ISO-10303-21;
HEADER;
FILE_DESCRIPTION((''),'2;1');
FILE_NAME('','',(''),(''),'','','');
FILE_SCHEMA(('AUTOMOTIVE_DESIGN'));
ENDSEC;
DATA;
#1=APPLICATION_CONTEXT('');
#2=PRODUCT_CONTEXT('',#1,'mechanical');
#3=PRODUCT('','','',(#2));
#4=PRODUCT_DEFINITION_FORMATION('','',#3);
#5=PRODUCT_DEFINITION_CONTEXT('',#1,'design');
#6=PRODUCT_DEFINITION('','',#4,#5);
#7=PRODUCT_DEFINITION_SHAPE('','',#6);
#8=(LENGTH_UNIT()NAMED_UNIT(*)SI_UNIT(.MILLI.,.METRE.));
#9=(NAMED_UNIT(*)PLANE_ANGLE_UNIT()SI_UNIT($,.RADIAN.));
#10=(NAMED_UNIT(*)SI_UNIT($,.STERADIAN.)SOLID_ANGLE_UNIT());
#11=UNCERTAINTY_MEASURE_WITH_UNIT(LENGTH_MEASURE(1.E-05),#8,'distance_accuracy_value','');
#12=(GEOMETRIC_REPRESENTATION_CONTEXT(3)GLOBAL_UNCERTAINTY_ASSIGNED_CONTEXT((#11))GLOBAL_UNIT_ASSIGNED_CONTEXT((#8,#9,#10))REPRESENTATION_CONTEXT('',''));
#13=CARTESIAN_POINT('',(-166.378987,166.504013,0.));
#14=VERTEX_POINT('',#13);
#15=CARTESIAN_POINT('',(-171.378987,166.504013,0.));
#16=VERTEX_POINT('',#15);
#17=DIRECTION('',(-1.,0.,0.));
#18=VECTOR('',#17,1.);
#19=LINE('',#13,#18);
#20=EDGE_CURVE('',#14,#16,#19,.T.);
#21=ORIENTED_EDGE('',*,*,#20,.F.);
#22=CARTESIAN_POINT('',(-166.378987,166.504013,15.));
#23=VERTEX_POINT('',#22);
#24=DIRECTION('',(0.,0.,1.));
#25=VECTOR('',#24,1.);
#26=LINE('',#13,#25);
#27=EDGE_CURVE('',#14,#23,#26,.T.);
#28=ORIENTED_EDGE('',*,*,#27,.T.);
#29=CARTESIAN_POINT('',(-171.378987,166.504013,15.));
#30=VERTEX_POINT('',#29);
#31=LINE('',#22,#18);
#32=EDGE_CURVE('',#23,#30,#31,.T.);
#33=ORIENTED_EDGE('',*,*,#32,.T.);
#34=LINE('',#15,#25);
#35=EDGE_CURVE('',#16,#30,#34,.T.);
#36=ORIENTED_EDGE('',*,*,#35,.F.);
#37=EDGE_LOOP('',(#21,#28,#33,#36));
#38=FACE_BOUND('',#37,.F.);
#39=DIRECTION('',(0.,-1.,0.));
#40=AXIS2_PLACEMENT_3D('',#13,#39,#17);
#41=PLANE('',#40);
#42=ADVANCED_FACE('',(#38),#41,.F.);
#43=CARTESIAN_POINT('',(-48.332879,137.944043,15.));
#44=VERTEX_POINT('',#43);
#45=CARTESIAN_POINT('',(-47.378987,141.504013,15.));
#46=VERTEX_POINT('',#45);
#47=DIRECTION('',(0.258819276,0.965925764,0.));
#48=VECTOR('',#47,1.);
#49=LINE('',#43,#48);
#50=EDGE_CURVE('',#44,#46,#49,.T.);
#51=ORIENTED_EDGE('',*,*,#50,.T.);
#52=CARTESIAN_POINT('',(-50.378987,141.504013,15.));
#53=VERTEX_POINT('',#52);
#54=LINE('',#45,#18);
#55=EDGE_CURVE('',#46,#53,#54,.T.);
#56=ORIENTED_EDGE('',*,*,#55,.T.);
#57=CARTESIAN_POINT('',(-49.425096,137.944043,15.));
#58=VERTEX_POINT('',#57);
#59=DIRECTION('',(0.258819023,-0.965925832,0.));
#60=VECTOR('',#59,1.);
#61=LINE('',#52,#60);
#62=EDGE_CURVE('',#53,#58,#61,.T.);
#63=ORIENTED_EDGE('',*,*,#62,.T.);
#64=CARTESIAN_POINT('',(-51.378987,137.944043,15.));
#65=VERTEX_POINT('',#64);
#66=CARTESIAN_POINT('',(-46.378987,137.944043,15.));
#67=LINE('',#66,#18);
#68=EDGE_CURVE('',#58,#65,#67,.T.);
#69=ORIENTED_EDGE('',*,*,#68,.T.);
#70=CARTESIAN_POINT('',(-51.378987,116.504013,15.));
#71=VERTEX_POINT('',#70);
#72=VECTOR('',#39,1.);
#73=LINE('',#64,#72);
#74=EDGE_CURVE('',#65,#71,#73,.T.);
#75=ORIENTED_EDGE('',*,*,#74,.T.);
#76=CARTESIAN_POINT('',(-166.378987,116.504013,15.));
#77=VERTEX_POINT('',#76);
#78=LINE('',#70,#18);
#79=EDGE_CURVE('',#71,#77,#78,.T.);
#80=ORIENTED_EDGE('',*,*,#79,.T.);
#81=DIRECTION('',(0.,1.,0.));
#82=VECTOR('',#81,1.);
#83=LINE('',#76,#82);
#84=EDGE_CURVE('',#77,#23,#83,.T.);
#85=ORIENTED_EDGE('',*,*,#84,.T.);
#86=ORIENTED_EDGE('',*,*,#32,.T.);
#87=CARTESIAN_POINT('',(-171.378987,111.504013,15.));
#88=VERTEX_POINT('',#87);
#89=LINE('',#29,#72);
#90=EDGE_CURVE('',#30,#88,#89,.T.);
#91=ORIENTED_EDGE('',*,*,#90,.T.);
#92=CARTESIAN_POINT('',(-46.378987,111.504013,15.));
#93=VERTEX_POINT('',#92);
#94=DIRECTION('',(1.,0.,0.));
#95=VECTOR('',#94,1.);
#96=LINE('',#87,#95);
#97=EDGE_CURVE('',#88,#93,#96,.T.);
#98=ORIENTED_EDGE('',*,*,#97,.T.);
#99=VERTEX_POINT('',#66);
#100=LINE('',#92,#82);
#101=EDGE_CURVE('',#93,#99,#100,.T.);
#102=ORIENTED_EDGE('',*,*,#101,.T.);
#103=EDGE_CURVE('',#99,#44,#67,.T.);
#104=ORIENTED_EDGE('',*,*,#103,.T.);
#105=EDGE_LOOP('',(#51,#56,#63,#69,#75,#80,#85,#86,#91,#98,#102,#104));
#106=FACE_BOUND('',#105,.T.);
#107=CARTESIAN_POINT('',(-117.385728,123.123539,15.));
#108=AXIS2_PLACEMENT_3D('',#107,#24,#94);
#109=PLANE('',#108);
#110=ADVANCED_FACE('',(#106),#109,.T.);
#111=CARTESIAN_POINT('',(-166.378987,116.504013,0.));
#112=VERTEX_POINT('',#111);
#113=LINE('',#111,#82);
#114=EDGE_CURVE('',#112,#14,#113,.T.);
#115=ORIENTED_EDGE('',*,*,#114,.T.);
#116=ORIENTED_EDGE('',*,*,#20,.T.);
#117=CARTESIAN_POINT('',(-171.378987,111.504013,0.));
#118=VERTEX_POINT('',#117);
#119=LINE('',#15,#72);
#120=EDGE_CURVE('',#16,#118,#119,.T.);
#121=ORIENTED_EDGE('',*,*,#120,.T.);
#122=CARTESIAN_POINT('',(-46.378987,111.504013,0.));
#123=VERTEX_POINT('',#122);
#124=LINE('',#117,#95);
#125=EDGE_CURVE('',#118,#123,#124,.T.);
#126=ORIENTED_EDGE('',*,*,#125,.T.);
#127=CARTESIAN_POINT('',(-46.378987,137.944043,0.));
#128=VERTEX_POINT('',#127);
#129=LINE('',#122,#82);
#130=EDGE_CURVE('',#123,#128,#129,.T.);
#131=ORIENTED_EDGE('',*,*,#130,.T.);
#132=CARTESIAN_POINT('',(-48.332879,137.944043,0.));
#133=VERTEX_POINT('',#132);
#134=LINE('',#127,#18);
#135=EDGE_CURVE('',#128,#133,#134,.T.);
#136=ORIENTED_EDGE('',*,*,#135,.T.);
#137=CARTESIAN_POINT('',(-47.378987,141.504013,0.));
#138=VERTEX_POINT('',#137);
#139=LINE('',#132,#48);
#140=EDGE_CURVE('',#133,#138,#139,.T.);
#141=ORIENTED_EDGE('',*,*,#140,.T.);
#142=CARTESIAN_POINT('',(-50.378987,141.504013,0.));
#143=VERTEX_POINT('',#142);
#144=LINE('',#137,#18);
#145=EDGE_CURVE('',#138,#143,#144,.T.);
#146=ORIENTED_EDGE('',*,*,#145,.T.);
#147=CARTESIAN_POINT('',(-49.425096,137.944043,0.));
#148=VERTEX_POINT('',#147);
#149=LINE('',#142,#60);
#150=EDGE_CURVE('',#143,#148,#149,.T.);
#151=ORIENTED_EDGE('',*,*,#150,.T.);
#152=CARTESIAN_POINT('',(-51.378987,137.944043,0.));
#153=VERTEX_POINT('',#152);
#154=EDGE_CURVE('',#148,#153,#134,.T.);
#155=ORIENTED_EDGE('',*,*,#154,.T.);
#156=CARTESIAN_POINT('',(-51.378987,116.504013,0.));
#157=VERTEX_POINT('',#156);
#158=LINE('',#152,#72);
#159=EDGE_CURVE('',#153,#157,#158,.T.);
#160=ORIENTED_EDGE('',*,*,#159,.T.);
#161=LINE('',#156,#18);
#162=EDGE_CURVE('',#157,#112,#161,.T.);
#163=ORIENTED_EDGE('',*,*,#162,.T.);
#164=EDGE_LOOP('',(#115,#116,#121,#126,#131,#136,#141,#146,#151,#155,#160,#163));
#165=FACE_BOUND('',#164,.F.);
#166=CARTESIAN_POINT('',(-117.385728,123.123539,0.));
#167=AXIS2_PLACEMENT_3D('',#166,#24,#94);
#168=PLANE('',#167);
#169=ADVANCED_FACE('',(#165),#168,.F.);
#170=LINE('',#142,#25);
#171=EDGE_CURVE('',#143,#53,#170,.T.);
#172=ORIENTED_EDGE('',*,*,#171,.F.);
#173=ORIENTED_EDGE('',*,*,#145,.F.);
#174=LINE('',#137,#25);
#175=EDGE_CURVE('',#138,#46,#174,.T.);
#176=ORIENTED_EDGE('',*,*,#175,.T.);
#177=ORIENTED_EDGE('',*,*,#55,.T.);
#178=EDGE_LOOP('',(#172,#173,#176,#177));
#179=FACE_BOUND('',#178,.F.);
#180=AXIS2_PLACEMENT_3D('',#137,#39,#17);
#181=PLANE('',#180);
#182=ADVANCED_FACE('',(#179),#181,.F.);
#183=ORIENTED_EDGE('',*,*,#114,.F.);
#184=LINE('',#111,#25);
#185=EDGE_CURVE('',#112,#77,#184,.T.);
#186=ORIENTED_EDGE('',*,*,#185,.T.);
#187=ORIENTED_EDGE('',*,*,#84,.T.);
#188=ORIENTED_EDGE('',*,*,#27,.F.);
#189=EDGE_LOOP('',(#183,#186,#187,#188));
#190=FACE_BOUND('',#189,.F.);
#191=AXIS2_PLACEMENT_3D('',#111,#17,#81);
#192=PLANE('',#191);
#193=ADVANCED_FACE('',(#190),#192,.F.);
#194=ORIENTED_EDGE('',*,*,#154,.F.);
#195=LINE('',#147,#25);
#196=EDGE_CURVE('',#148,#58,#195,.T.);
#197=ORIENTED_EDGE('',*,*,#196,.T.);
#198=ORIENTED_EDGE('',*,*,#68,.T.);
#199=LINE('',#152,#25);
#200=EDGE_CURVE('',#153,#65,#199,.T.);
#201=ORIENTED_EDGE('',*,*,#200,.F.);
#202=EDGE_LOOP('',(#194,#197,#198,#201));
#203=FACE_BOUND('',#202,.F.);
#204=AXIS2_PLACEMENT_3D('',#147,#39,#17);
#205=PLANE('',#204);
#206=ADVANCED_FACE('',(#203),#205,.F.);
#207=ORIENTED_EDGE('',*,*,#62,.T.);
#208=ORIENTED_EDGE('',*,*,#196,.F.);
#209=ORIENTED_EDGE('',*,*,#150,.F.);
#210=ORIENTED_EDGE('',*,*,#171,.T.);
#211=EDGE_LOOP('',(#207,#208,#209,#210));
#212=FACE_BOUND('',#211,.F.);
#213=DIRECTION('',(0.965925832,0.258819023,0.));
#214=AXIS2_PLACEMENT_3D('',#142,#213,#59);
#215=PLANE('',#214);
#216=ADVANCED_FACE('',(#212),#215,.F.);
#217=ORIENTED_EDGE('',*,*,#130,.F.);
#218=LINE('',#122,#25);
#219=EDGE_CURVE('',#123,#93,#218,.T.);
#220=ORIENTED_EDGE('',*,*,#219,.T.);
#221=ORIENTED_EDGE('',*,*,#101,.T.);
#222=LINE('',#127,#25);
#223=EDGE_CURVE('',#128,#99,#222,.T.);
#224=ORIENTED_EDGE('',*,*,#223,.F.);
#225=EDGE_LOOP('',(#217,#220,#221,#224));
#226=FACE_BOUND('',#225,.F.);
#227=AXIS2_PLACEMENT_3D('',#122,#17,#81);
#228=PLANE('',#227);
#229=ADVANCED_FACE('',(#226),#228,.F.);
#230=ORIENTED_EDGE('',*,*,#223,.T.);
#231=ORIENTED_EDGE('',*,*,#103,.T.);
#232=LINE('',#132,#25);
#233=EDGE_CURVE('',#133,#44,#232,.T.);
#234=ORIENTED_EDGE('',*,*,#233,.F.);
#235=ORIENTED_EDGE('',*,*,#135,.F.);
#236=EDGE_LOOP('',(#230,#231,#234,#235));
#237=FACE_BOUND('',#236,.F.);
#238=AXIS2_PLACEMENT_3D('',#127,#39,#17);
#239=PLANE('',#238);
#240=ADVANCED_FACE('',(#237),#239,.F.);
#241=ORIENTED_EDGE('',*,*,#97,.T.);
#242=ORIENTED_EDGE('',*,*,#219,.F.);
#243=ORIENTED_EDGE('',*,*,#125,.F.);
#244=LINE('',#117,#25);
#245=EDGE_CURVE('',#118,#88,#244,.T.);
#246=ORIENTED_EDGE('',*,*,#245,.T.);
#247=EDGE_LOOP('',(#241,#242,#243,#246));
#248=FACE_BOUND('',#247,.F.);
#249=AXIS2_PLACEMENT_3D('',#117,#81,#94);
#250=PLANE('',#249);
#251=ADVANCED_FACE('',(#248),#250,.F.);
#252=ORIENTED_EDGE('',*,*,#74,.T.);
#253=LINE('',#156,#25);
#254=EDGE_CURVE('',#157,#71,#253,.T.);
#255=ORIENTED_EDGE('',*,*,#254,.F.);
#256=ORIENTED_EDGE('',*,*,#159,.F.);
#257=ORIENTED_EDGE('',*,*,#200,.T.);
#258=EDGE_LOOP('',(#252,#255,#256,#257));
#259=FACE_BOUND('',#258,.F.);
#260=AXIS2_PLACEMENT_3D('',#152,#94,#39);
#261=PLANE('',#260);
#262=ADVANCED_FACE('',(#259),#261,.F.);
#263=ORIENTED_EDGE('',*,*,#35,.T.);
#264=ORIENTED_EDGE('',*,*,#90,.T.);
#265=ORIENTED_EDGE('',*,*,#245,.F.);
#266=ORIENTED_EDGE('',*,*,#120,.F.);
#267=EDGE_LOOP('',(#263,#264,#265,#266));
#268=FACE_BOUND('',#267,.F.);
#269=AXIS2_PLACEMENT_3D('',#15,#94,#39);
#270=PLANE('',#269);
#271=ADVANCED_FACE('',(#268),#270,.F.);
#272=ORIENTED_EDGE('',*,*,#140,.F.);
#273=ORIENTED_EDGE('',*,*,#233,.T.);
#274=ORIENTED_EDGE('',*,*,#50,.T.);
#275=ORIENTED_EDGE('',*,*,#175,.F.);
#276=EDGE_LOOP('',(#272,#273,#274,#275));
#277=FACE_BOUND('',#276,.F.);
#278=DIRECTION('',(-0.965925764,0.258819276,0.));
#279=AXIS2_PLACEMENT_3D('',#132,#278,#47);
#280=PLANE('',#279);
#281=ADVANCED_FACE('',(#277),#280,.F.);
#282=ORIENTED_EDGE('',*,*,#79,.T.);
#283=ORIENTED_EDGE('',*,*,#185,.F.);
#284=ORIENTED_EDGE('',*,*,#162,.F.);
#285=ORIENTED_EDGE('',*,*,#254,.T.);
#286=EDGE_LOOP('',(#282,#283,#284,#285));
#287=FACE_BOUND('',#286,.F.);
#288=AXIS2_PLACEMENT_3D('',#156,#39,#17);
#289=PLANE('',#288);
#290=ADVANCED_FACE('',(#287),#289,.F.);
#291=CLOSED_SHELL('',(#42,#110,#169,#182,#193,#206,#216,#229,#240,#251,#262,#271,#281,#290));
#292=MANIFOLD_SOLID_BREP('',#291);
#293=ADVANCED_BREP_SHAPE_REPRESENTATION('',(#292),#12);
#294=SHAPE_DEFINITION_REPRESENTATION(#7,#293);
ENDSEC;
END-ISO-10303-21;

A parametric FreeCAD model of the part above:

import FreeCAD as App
import Part
import Sketcher
Q = App.Units.Quantity


def add_polygon(sketch, points):
    """Adds a closed chain of lines whose ends are joined by coincident constraints."""
    first, n = sketch.GeometryCount, len(points)
    for a, b in zip(points, points[1:] + points[:1]):
        sketch.addGeometry(Part.LineSegment(App.Vector(*a, 0), App.Vector(*b, 0)), False)
    for i in range(n):
        sketch.addConstraint(Sketcher.Constraint("Coincident", first + i, 2, first + (i + 1) % n, 1))

doc = App.newDocument("Part")
params = doc.addObject("Spreadsheet::Sheet", "Params")
for row, (alias, value) in enumerate([
    ("sketch1_width", "5 mm"),
    ("sketch1_width2", "125 mm"),
    ("sketch1_width3", "3 mm"),
    ("sketch1_width4", "115 mm"),
    ("sketch1_height", "55 mm"),
    ("pad1_length", "15 mm"),
], start=1):
    params.set(f"A{row}", alias)
    params.set(f"B{row}", "=" + value)
    params.setAlias(f"B{row}", alias)

body = doc.addObject("PartDesign::Body", "Body")

# Sketch on XY plane
sketch1 = doc.addObject("Sketcher::SketchObject", "Sketch")
body.addObject(sketch1)
sketch1.AttachmentSupport = (doc.XY_Plane, [""])
sketch1.MapMode = "FlatFace"
add_polygon(sketch1, [(-166.4, 166.5), (-171.4, 166.5), (-171.4, 111.5), (-46.4, 111.5), (-46.4, 137.9), (-48.3, 137.9), (-47.4, 141.5), (-50.4, 141.5), (-49.4, 137.9), (-51.4, 137.9), (-51.4, 116.5), (-166.4, 116.5)])  # lines 0-11
sketch1.addConstraint([
    Sketcher.Constraint("Horizontal", 0),
    Sketcher.Constraint("Vertical", 1),
    Sketcher.Constraint("Horizontal", 2),
    Sketcher.Constraint("Vertical", 3),
    Sketcher.Constraint("Horizontal", 4),
    Sketcher.Constraint("Horizontal", 6),
    Sketcher.Constraint("Horizontal", 8),
    Sketcher.Constraint("Vertical", 9),
    Sketcher.Constraint("Horizontal", 10),
    Sketcher.Constraint("Vertical", 11),
    Sketcher.Constraint("Horizontal", 4, 2, 7, 2),
    Sketcher.Constraint("Equal", 4, 8),
    Sketcher.Constraint("Equal", 5, 7),
    Sketcher.Constraint("DistanceX", 0, 2, 0, 1, Q("5 mm")),
    Sketcher.Constraint("DistanceX", 2, 1, 2, 2, Q("125 mm")),
    Sketcher.Constraint("DistanceX", 6, 2, 6, 1, Q("3 mm")),
    Sketcher.Constraint("DistanceX", 10, 2, 10, 1, Q("115 mm")),
    Sketcher.Constraint("DistanceY", 1, 2, 1, 1, Q("55 mm")),
    Sketcher.Constraint("DistanceY", 11, 1, 11, 2, Q("50 mm")),
    Sketcher.Constraint("Angle", 5, Q("74.999986 deg")),
    Sketcher.Constraint("DistanceY", 2, 2, 5, 2, Q("30 mm")),
    Sketcher.Constraint("DistanceX", 4, 2, 4, 1, Q("1.953892 mm")),
    Sketcher.Constraint("DistanceX", 4, 2, -1, 1, Q("48.332879 mm")),
    Sketcher.Constraint("DistanceY", -1, 1, 0, 2, Q("166.504013 mm")),
])
sketch1.setExpression("Constraints[25]", "Params.sketch1_width")
sketch1.setExpression("Constraints[26]", "Params.sketch1_width2")
sketch1.setExpression("Constraints[27]", "Params.sketch1_width3")
sketch1.setExpression("Constraints[28]", "Params.sketch1_width4")
sketch1.setExpression("Constraints[29]", "Params.sketch1_height")
pad1 = doc.addObject("PartDesign::Pad", "Pad")
body.addObject(pad1)
pad1.Profile = sketch1
pad1.setExpression("Length", "Params.pad1_length")

doc.recompute()
